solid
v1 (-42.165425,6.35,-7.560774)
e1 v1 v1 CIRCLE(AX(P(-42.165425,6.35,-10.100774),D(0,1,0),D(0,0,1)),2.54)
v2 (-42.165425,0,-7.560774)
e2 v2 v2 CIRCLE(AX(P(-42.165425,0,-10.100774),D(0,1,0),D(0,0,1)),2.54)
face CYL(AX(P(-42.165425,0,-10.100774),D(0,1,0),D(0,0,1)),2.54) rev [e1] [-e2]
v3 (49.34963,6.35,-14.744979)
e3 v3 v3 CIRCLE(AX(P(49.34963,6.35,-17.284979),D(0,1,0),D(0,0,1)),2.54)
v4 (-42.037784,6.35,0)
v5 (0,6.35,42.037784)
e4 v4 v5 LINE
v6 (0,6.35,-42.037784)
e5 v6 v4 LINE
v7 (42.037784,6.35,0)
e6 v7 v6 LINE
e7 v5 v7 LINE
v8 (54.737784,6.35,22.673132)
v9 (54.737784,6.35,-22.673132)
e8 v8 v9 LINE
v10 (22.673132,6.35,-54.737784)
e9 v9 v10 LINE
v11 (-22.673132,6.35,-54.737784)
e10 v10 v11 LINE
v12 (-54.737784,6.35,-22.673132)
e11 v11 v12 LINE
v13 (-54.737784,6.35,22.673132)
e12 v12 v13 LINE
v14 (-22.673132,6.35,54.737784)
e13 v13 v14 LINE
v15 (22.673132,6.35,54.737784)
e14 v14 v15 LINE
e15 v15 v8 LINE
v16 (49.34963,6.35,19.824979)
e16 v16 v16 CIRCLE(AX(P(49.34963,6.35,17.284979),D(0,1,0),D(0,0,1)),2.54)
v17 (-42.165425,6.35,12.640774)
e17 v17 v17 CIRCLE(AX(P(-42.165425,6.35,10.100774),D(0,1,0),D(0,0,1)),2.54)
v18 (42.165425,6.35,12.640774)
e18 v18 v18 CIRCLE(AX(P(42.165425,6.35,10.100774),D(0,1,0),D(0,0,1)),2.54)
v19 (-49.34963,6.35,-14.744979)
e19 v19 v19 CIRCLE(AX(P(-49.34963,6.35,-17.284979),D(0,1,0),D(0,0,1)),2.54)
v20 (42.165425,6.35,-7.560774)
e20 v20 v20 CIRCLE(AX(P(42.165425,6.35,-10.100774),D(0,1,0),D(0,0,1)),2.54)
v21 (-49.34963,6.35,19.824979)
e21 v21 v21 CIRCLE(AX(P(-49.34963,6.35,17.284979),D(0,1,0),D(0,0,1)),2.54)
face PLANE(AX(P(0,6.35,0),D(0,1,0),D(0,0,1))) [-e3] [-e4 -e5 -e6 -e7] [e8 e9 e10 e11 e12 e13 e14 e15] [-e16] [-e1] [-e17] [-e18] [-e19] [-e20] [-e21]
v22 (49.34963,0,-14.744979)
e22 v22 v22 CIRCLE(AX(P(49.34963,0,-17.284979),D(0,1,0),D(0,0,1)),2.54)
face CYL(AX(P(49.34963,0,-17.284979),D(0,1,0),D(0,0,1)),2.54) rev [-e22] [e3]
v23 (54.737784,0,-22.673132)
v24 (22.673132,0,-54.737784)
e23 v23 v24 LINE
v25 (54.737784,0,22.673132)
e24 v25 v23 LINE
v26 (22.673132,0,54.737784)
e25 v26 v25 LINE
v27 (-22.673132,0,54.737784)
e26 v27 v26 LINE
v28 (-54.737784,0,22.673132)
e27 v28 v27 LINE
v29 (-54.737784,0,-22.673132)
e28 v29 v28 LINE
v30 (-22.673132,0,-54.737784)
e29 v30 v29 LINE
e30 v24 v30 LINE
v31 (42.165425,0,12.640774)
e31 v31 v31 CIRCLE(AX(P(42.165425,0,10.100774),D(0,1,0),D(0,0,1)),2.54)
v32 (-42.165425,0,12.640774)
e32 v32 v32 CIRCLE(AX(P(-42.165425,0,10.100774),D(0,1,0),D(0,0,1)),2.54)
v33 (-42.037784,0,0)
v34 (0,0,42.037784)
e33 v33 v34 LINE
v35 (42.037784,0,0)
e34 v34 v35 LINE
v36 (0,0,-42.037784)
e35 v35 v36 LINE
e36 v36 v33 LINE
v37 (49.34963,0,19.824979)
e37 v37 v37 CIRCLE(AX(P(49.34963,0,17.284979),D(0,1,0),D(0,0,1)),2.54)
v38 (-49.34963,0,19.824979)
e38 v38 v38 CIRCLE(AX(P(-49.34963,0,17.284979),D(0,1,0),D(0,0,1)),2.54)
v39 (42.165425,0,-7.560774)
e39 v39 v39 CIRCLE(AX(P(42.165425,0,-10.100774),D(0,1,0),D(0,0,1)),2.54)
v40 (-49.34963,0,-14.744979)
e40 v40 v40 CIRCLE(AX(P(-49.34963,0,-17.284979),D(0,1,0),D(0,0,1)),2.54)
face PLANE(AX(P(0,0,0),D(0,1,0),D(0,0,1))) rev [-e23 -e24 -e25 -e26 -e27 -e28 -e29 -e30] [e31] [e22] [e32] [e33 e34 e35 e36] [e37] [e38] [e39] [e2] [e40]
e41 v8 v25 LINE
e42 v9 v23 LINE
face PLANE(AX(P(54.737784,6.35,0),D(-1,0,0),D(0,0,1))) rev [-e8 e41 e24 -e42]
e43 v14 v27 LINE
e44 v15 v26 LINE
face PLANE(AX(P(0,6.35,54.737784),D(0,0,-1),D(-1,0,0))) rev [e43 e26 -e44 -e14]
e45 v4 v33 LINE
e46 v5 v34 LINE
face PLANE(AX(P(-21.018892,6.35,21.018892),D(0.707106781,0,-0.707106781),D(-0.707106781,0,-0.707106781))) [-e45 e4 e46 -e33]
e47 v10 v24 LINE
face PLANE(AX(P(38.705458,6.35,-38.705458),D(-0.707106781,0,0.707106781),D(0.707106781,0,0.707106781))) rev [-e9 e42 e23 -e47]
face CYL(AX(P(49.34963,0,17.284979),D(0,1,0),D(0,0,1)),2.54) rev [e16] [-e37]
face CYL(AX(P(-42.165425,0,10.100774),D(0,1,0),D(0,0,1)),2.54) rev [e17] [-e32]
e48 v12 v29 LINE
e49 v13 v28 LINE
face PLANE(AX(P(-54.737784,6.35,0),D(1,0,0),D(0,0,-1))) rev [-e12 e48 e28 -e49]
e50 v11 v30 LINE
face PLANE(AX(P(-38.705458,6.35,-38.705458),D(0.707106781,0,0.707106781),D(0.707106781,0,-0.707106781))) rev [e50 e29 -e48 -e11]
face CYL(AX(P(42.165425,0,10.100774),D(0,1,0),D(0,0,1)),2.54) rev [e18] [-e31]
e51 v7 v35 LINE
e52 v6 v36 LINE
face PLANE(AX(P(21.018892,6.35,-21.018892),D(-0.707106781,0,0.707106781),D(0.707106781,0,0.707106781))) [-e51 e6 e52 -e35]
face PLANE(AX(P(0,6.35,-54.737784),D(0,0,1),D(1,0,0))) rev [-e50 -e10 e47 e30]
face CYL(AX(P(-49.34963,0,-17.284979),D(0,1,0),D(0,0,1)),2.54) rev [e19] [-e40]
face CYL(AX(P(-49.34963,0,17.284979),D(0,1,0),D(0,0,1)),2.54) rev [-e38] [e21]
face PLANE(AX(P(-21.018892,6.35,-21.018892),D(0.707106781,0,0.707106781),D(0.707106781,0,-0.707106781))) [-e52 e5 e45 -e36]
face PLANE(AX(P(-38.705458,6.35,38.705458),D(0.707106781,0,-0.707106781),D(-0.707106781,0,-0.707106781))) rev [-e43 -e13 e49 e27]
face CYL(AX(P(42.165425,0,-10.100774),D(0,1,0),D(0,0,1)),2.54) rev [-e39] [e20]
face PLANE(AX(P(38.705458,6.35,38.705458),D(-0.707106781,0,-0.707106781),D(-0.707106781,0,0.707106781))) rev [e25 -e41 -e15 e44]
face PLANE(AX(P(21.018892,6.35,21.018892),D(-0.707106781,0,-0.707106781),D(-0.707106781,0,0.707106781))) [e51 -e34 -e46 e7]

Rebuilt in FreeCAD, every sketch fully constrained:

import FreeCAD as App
import Part
import Sketcher

V = App.Vector
Q = App.Units.Quantity

doc = App.newDocument("Part")
params = doc.addObject("Spreadsheet::Sheet", "Params")
for row, (alias, value) in enumerate([
    ("pad1_length", "0.25 in"),
    ("sketch2_diameter", "0.2 in"),
    ("pocket1_length", "0.25 in"),
], start=1):
    params.set(f"A{row}", alias)
    params.set(f"B{row}", "=" + value)
    params.setAlias(f"B{row}", alias)

body = doc.addObject("PartDesign::Body", "Body")

sketch1 = body.newObject("Sketcher::SketchObject", "Sketch")
sketch1.AttachmentSupport = (doc.getObject("XZ_Plane"), [""])
sketch1.MapMode = "FlatFace"
sketch1.addGeometry([
    Part.LineSegment(V(54.737784, -22.673132, 0), V(22.673132, -54.737784, 0)),
    Part.LineSegment(V(22.673132, -54.737784, 0), V(-22.673132, -54.737784, 0)),
    Part.LineSegment(V(-22.673132, -54.737784, 0), V(-54.737784, -22.673132, 0)),
    Part.LineSegment(V(-54.737784, -22.673132, 0), V(-54.737784, 22.673132, 0)),
    Part.LineSegment(V(-54.737784, 22.673132, 0), V(-22.673132, 54.737784, 0)),
    Part.LineSegment(V(-22.673132, 54.737784, 0), V(22.673132, 54.737784, 0)),
    Part.LineSegment(V(22.673132, 54.737784, 0), V(54.737784, 22.673132, 0)),
    Part.LineSegment(V(54.737784, 22.673132, 0), V(54.737784, -22.673132, 0)),
    Part.LineSegment(V(0, 42.037784, 0), V(-42.037784, 0, 0)),
    Part.LineSegment(V(-42.037784, 0, 0), V(0, -42.037784, 0)),
    Part.LineSegment(V(0, -42.037784, 0), V(42.037784, 0, 0)),
    Part.LineSegment(V(42.037784, 0, 0), V(0, 42.037784, 0)),
], False)
sketch1.addConstraint([
    Sketcher.Constraint("Coincident", 0, 2, 1, 1),
    Sketcher.Constraint("Coincident", 1, 2, 2, 1),
    Sketcher.Constraint("Coincident", 2, 2, 3, 1),
    Sketcher.Constraint("Coincident", 3, 2, 4, 1),
    Sketcher.Constraint("Coincident", 4, 2, 5, 1),
    Sketcher.Constraint("Coincident", 5, 2, 6, 1),
    Sketcher.Constraint("Coincident", 6, 2, 7, 1),
    Sketcher.Constraint("Coincident", 7, 2, 0, 1),
    Sketcher.Constraint("Coincident", 8, 2, 9, 1),
    Sketcher.Constraint("Coincident", 9, 2, 10, 1),
    Sketcher.Constraint("Coincident", 10, 2, 11, 1),
    Sketcher.Constraint("Coincident", 11, 2, 8, 1),
    Sketcher.Constraint("Horizontal", 1),
    Sketcher.Constraint("Vertical", 3),
    Sketcher.Constraint("Horizontal", 5),
    Sketcher.Constraint("Vertical", 7),
    Sketcher.Constraint("Symmetric", 0, 2, 4, 2, -1, 1),
    Sketcher.Constraint("Symmetric", 2, 2, 6, 2, -1, 1),
    Sketcher.Constraint("Symmetric", 8, 2, 10, 2, -1, 1),
    Sketcher.Constraint("Symmetric", 9, 2, 11, 2, -1, 1),
    Sketcher.Constraint("PointOnObject", 8, 2, -1),
    Sketcher.Constraint("PointOnObject", 9, 2, -2),
    Sketcher.Constraint("Perpendicular", 0, 2),
    Sketcher.Constraint("Perpendicular", 2, 4),
    Sketcher.Constraint("Perpendicular", 4, 6),
    Sketcher.Constraint("Perpendicular", 6, 8),
    Sketcher.Constraint("Perpendicular", 8, 9),
    Sketcher.Constraint("Horizontal", 3, 2, 6, 2),
    Sketcher.Constraint("Equal", 5, 3),
    Sketcher.Constraint("DistanceX", 2, 2, 8, 2, Q("0.5 in")),
    Sketcher.Constraint("DistanceX", 1, 2, 1, 1, 45.346265),
    Sketcher.Constraint("DistanceX", 2, 2, 1, 2, 32.064651),
])
pad1 = body.newObject("PartDesign::Pad", "Pad")
pad1.Profile = sketch1
pad1.setExpression("Length", "Params.pad1_length")
pad1.Reversed = True

sketch2 = body.newObject("Sketcher::SketchObject", "Sketch001")
sketch2.AttachmentSupport = (doc.getObject("XZ_Plane"), [""])
sketch2.MapMode = "FlatFace"
sketch2.AttachmentOffset = App.Placement(V(0, 0, -0.25 * 25.4), App.Rotation())
sketch2.addGeometry([
    Part.Circle(V(-49.34963, -17.284979, 0), V(0, 0, 1), 2.54),
    Part.Circle(V(-42.165425, -10.100774, 0), V(0, 0, 1), 2.54),
    Part.Circle(V(-49.34963, 17.284979, 0), V(0, 0, 1), 2.54),
    Part.Circle(V(-42.165425, 10.100774, 0), V(0, 0, 1), 2.54),
    Part.Circle(V(49.34963, -17.284979, 0), V(0, 0, 1), 2.54),
    Part.Circle(V(42.165425, -10.100774, 0), V(0, 0, 1), 2.54),
    Part.Circle(V(42.165425, 10.100774, 0), V(0, 0, 1), 2.54),
    Part.Circle(V(49.34963, 17.284979, 0), V(0, 0, 1), 2.54),
], False)
sketch2.addConstraint([
    Sketcher.Constraint("Equal", 0, 1),
    Sketcher.Constraint("Equal", 1, 2),
    Sketcher.Constraint("Equal", 2, 3),
    Sketcher.Constraint("Equal", 3, 4),
    Sketcher.Constraint("Equal", 4, 5),
    Sketcher.Constraint("Equal", 5, 6),
    Sketcher.Constraint("Equal", 6, 7),
    Sketcher.Constraint("Symmetric", 2, 3, 4, 3, -1, 1),
    Sketcher.Constraint("Symmetric", 3, 3, 5, 3, -1, 1),
    Sketcher.Constraint("Symmetric", 1, 3, 6, 3, -1, 1),
    Sketcher.Constraint("Symmetric", 0, 3, 7, 3, -1, 1),
    Sketcher.Constraint("Symmetric", 0, 3, 4, 3, -2),
    Sketcher.Constraint("Symmetric", 1, 3, 5, 3, -2),
    Sketcher.Constraint("Diameter", 0, Q("0.2 in")),
    Sketcher.Constraint("DistanceX", 0, 3, -1, 1, 49.34963),
    Sketcher.Constraint("DistanceY", 0, 3, -1, 1, 17.284979),
    Sketcher.Constraint("DistanceX", 1, 3, 5, 3, 84.33085),
    Sketcher.Constraint("DistanceY", 1, 3, -1, 1, 10.100774),
])
sketch2.setExpression("Constraints[13]", "Params.sketch2_diameter")
pocket1 = body.newObject("PartDesign::Pocket", "Pocket")
pocket1.Profile = sketch2
pocket1.setExpression("Length", "Params.pocket1_length")
pocket1.Reversed = True

doc.recompute()
